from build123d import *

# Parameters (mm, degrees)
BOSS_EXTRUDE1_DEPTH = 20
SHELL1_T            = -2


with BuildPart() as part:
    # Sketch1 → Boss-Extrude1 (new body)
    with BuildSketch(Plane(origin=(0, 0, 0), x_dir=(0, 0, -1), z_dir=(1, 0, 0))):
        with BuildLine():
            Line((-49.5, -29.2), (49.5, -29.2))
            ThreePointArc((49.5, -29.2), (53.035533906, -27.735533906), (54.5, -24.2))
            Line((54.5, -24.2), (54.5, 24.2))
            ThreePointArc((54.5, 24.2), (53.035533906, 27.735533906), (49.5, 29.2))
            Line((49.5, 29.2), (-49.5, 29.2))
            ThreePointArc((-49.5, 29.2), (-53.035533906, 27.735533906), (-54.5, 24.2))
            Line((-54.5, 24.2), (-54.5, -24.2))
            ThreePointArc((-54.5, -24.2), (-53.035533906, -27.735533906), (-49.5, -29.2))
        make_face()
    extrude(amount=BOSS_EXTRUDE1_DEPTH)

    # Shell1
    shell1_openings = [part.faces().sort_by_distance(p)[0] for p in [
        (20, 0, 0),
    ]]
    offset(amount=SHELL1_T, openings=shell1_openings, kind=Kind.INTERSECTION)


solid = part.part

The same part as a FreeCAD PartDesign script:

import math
import FreeCAD as App
import Part
import Sketcher


def faces_at(feature, points):
    """Names of the faces that lie closest to the given points."""
    faces = feature.Shape.Faces
    near = lambda p: min(range(len(faces)), key=lambda i: faces[i].distToShape(Part.Vertex(*p))[0])
    return sorted({f"Face{near(p) + 1}" for p in points})

doc = App.newDocument("Part")
body = doc.addObject("PartDesign::Body", "Body")

# Sketch on YZ plane
sketch1 = body.newObject("Sketcher::SketchObject", "Sketch")
sketch1.AttachmentSupport = (doc.getObject("YZ_Plane"), [""])
sketch1.MapMode = "FlatFace"
sketch1.addGeometry([
    Part.LineSegment(App.Vector(-29, 50, 0), App.Vector(-29, -50, 0)),  # 0
    Part.ArcOfCircle(Part.Circle(App.Vector(-24, -50, 0), App.Vector(0, 0, 1), 5), math.radians(180), math.radians(270)),  # 1
    Part.LineSegment(App.Vector(-24, -54, 0), App.Vector(24, -54, 0)),  # 2
    Part.ArcOfCircle(Part.Circle(App.Vector(24, -50, 0), App.Vector(0, 0, 1), 5), math.radians(-90), math.radians(0)),  # 3
    Part.LineSegment(App.Vector(29, -50, 0), App.Vector(29, 50, 0)),  # 4
    Part.ArcOfCircle(Part.Circle(App.Vector(24, 50, 0), App.Vector(0, 0, 1), 5), math.radians(0), math.radians(90)),  # 5
    Part.LineSegment(App.Vector(24, 54, 0), App.Vector(-24, 54, 0)),  # 6
    Part.ArcOfCircle(Part.Circle(App.Vector(-24, 50, 0), App.Vector(0, 0, 1), 5), math.radians(90), math.radians(180)),  # 7
], False)
sketch1.addConstraint([
    Sketcher.Constraint("Tangent", 0, 2, 1, 1),
    Sketcher.Constraint("Tangent", 1, 2, 2, 1),
    Sketcher.Constraint("Tangent", 2, 2, 3, 1),
    Sketcher.Constraint("Tangent", 3, 2, 4, 1),
    Sketcher.Constraint("Tangent", 4, 2, 5, 1),
    Sketcher.Constraint("Tangent", 5, 2, 6, 1),
    Sketcher.Constraint("Tangent", 6, 2, 7, 1),
    Sketcher.Constraint("Tangent", 7, 2, 0, 1),
    Sketcher.Constraint("Vertical", 0),
    Sketcher.Constraint("Horizontal", 2),
    Sketcher.Constraint("Vertical", 4),
    Sketcher.Constraint("Horizontal", 6),
    Sketcher.Constraint("Equal", 1, 3),
    Sketcher.Constraint("Equal", 3, 5),
    Sketcher.Constraint("Equal", 5, 7),
    Sketcher.Constraint("Symmetric", 1, 3, 5, 3, -1, 1),
    Sketcher.Constraint("Radius", 1, 5.0),
    Sketcher.Constraint("DistanceY", 0, 2, 0, 1, 99.0),
    Sketcher.Constraint("DistanceX", 2, 1, 2, 2, 48.4),
])
pad1 = body.newObject("PartDesign::Pad", "Pad")
pad1.Profile = sketch1
pad1.Length = 20
doc.recompute()

thickness = body.newObject("PartDesign::Thickness", "Thickness")
thickness.Base = (pad1, faces_at(pad1, [(20, 0, 0)]))
thickness.Value = 2
thickness.Reversed = True
thickness.Join = "Intersection"

doc.recompute()
